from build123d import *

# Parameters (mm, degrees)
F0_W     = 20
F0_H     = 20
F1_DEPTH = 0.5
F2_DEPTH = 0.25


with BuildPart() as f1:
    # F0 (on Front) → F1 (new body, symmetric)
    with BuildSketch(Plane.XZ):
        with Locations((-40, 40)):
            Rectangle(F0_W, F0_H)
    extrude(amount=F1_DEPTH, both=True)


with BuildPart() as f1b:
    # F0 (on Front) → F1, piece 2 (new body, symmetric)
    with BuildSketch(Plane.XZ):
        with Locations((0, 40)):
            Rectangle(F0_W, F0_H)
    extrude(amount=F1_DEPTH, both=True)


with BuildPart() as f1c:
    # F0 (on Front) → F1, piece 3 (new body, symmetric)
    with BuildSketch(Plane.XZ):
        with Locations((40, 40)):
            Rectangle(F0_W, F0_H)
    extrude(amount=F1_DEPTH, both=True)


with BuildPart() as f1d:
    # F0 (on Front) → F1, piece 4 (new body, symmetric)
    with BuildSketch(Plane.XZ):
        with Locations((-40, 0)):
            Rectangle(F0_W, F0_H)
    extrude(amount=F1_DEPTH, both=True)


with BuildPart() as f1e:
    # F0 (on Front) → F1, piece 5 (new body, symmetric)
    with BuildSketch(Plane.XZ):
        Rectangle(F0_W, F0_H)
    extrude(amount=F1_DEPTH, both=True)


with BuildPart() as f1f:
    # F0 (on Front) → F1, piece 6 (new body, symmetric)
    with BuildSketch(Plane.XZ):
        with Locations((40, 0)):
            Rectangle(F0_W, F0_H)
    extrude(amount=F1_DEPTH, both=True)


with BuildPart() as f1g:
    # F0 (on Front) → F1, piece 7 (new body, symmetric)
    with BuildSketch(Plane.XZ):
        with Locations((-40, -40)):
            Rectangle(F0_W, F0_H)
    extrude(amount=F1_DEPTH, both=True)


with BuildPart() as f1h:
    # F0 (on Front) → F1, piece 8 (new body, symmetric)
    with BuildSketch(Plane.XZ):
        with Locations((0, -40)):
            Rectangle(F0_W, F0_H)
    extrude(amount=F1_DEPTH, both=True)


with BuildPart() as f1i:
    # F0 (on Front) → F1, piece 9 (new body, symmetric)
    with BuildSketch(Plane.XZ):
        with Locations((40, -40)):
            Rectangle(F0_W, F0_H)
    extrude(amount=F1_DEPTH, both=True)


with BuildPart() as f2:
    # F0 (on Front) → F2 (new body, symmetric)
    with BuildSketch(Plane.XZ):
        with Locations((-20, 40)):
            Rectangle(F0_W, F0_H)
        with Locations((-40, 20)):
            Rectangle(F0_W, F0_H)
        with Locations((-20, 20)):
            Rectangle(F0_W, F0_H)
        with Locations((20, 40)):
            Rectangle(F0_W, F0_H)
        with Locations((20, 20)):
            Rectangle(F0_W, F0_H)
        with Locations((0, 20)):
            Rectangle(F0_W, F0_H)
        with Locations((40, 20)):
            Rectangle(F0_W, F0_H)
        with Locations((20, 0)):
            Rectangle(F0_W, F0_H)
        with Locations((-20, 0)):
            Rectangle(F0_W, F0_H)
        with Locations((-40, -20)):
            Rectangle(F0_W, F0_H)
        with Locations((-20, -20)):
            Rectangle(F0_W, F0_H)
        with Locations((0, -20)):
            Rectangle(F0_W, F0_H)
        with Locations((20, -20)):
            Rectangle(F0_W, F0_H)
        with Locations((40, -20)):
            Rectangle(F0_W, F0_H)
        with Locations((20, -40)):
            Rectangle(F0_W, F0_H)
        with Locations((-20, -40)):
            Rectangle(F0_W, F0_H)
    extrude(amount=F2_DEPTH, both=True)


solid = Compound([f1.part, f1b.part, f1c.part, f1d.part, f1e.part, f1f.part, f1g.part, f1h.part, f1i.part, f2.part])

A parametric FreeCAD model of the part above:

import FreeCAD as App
import Part
import Sketcher

V = App.Vector


def add_polygon(sketch, points):
    """Adds a closed chain of lines whose ends are joined by coincident constraints."""
    first, n = sketch.GeometryCount, len(points)
    for a, b in zip(points, points[1:] + points[:1]):
        sketch.addGeometry(Part.LineSegment(App.Vector(*a, 0), App.Vector(*b, 0)), False)
    for i in range(n):
        sketch.addConstraint(Sketcher.Constraint("Coincident", first + i, 2, first + (i + 1) % n, 1))

doc = App.newDocument("Part")
params = doc.addObject("Spreadsheet::Sheet", "Params")
for row, (alias, value) in enumerate([
    ("sketch1_width", "20 mm"),
    ("pad1_length", "1 mm"),
    ("sketch2_width", "20 mm"),
    ("pad2_length", "1 mm"),
    ("sketch3_width", "20 mm"),
    ("pad3_length", "1 mm"),
    ("sketch4_width", "20 mm"),
    ("pad4_length", "1 mm"),
    ("sketch5_width", "20 mm"),
    ("pad5_length", "1 mm"),
    ("sketch6_width", "20 mm"),
    ("pad6_length", "1 mm"),
    ("sketch7_width", "20 mm"),
    ("pad7_length", "1 mm"),
    ("sketch8_width", "20 mm"),
    ("pad8_length", "1 mm"),
    ("sketch9_width", "20 mm"),
    ("pad9_length", "1 mm"),
    ("sketch10_width", "20 mm"),
    ("pad10_length", "0.5 mm"),
], start=1):
    params.set(f"A{row}", alias)
    params.set(f"B{row}", "=" + value)
    params.setAlias(f"B{row}", alias)

body = doc.addObject("PartDesign::Body", "Body")

sketch1 = doc.addObject("Sketcher::SketchObject", "Sketch")
body.addObject(sketch1)
sketch1.AttachmentSupport = (doc.XZ_Plane, [""])
sketch1.MapMode = "FlatFace"
add_polygon(sketch1, [(-50, 50), (-50, 30), (-30, 30), (-30, 50)])
sketch1.addConstraint(Sketcher.Constraint("Vertical", 0))
sketch1.addConstraint(Sketcher.Constraint("Horizontal", 1))
sketch1.addConstraint(Sketcher.Constraint("Vertical", 2))
sketch1.addConstraint(Sketcher.Constraint("Horizontal", 3))
sketch1.addConstraint(Sketcher.Constraint("Equal", 3, 0))
sketch1.addConstraint(Sketcher.Constraint("DistanceX", 1, 1, 1, 2, 20.0))
sketch1.addConstraint(Sketcher.Constraint("DistanceX", 0, 2, -1, 1, 50.0))
sketch1.addConstraint(Sketcher.Constraint("DistanceY", -1, 1, 0, 2, 30.0))
sketch1.setExpression("Constraints[9]", "Params.sketch1_width")
pad1 = doc.addObject("PartDesign::Pad", "Pad")
body.addObject(pad1)
pad1.Profile = sketch1
pad1.setExpression("Length", "Params.pad1_length")
pad1.Midplane = True
body2 = doc.addObject("PartDesign::Body", "Body001")

sketch2 = doc.addObject("Sketcher::SketchObject", "Sketch001")
body2.addObject(sketch2)
sketch2.AttachmentSupport = (doc.getObject("XZ_Plane001"), [""])
sketch2.MapMode = "FlatFace"
add_polygon(sketch2, [(-10, 50), (-10, 30), (10, 30), (10, 50)])
sketch2.addConstraint(Sketcher.Constraint("Vertical", 0))
sketch2.addConstraint(Sketcher.Constraint("Horizontal", 1))
sketch2.addConstraint(Sketcher.Constraint("Vertical", 2))
sketch2.addConstraint(Sketcher.Constraint("Horizontal", 3))
sketch2.addConstraint(Sketcher.Constraint("Equal", 3, 0))
sketch2.addConstraint(Sketcher.Constraint("DistanceX", 1, 1, 1, 2, 20.0))
sketch2.addConstraint(Sketcher.Constraint("DistanceX", 0, 2, -1, 1, 10.0))
sketch2.addConstraint(Sketcher.Constraint("DistanceY", -1, 1, 0, 2, 30.0))
sketch2.setExpression("Constraints[9]", "Params.sketch2_width")
pad2 = doc.addObject("PartDesign::Pad", "Pad001")
body2.addObject(pad2)
pad2.Profile = sketch2
pad2.setExpression("Length", "Params.pad2_length")
pad2.Midplane = True
body3 = doc.addObject("PartDesign::Body", "Body002")

sketch3 = doc.addObject("Sketcher::SketchObject", "Sketch002")
body3.addObject(sketch3)
sketch3.AttachmentSupport = (doc.getObject("XZ_Plane002"), [""])
sketch3.MapMode = "FlatFace"
add_polygon(sketch3, [(30, 50), (30, 30), (50, 30), (50, 50)])
sketch3.addConstraint(Sketcher.Constraint("Vertical", 0))
sketch3.addConstraint(Sketcher.Constraint("Horizontal", 1))
sketch3.addConstraint(Sketcher.Constraint("Vertical", 2))
sketch3.addConstraint(Sketcher.Constraint("Horizontal", 3))
sketch3.addConstraint(Sketcher.Constraint("Equal", 3, 0))
sketch3.addConstraint(Sketcher.Constraint("DistanceX", 1, 1, 1, 2, 20.0))
sketch3.addConstraint(Sketcher.Constraint("DistanceX", -1, 1, 0, 2, 30.0))
sketch3.addConstraint(Sketcher.Constraint("DistanceY", -1, 1, 0, 2, 30.0))
sketch3.setExpression("Constraints[9]", "Params.sketch3_width")
pad3 = doc.addObject("PartDesign::Pad", "Pad002")
body3.addObject(pad3)
pad3.Profile = sketch3
pad3.setExpression("Length", "Params.pad3_length")
pad3.Midplane = True
body4 = doc.addObject("PartDesign::Body", "Body003")

sketch4 = doc.addObject("Sketcher::SketchObject", "Sketch003")
body4.addObject(sketch4)
sketch4.AttachmentSupport = (doc.getObject("XZ_Plane003"), [""])
sketch4.MapMode = "FlatFace"
add_polygon(sketch4, [(-50, 10), (-50, -10), (-30, -10), (-30, 10)])
sketch4.addConstraint(Sketcher.Constraint("Vertical", 0))
sketch4.addConstraint(Sketcher.Constraint("Horizontal", 1))
sketch4.addConstraint(Sketcher.Constraint("Vertical", 2))
sketch4.addConstraint(Sketcher.Constraint("Horizontal", 3))
sketch4.addConstraint(Sketcher.Constraint("Equal", 3, 0))
sketch4.addConstraint(Sketcher.Constraint("DistanceX", 1, 1, 1, 2, 20.0))
sketch4.addConstraint(Sketcher.Constraint("DistanceX", 0, 2, -1, 1, 50.0))
sketch4.addConstraint(Sketcher.Constraint("DistanceY", 0, 2, -1, 1, 10.0))
sketch4.setExpression("Constraints[9]", "Params.sketch4_width")
pad4 = doc.addObject("PartDesign::Pad", "Pad003")
body4.addObject(pad4)
pad4.Profile = sketch4
pad4.setExpression("Length", "Params.pad4_length")
pad4.Midplane = True
body5 = doc.addObject("PartDesign::Body", "Body004")

sketch5 = doc.addObject("Sketcher::SketchObject", "Sketch004")
body5.addObject(sketch5)
sketch5.AttachmentSupport = (doc.getObject("XZ_Plane004"), [""])
sketch5.MapMode = "FlatFace"
add_polygon(sketch5, [(-10, 10), (-10, -10), (10, -10), (10, 10)])
sketch5.addConstraint(Sketcher.Constraint("Vertical", 0))
sketch5.addConstraint(Sketcher.Constraint("Horizontal", 1))
sketch5.addConstraint(Sketcher.Constraint("Vertical", 2))
sketch5.addConstraint(Sketcher.Constraint("Horizontal", 3))
sketch5.addConstraint(Sketcher.Constraint("Symmetric", 0, 2, 2, 2, -1, 1))
sketch5.addConstraint(Sketcher.Constraint("Equal", 3, 0))
sketch5.addConstraint(Sketcher.Constraint("DistanceX", 1, 1, 1, 2, 20.0))
sketch5.setExpression("Constraints[10]", "Params.sketch5_width")
pad5 = doc.addObject("PartDesign::Pad", "Pad004")
body5.addObject(pad5)
pad5.Profile = sketch5
pad5.setExpression("Length", "Params.pad5_length")
pad5.Midplane = True
body6 = doc.addObject("PartDesign::Body", "Body005")

sketch6 = doc.addObject("Sketcher::SketchObject", "Sketch005")
body6.addObject(sketch6)
sketch6.AttachmentSupport = (doc.getObject("XZ_Plane005"), [""])
sketch6.MapMode = "FlatFace"
add_polygon(sketch6, [(30, 10), (30, -10), (50, -10), (50, 10)])
sketch6.addConstraint(Sketcher.Constraint("Vertical", 0))
sketch6.addConstraint(Sketcher.Constraint("Horizontal", 1))
sketch6.addConstraint(Sketcher.Constraint("Vertical", 2))
sketch6.addConstraint(Sketcher.Constraint("Horizontal", 3))
sketch6.addConstraint(Sketcher.Constraint("Equal", 3, 0))
sketch6.addConstraint(Sketcher.Constraint("DistanceX", 1, 1, 1, 2, 20.0))
sketch6.addConstraint(Sketcher.Constraint("DistanceX", -1, 1, 0, 2, 30.0))
sketch6.addConstraint(Sketcher.Constraint("DistanceY", 0, 2, -1, 1, 10.0))
sketch6.setExpression("Constraints[9]", "Params.sketch6_width")
pad6 = doc.addObject("PartDesign::Pad", "Pad005")
body6.addObject(pad6)
pad6.Profile = sketch6
pad6.setExpression("Length", "Params.pad6_length")
pad6.Midplane = True
body7 = doc.addObject("PartDesign::Body", "Body006")

sketch7 = doc.addObject("Sketcher::SketchObject", "Sketch006")
body7.addObject(sketch7)
sketch7.AttachmentSupport = (doc.getObject("XZ_Plane006"), [""])
sketch7.MapMode = "FlatFace"
add_polygon(sketch7, [(-50, -30), (-50, -50), (-30, -50), (-30, -30)])
sketch7.addConstraint(Sketcher.Constraint("Vertical", 0))
sketch7.addConstraint(Sketcher.Constraint("Horizontal", 1))
sketch7.addConstraint(Sketcher.Constraint("Vertical", 2))
sketch7.addConstraint(Sketcher.Constraint("Horizontal", 3))
sketch7.addConstraint(Sketcher.Constraint("Equal", 3, 0))
sketch7.addConstraint(Sketcher.Constraint("DistanceX", 1, 1, 1, 2, 20.0))
sketch7.addConstraint(Sketcher.Constraint("DistanceX", 0, 2, -1, 1, 50.0))
sketch7.addConstraint(Sketcher.Constraint("DistanceY", 0, 2, -1, 1, 50.0))
sketch7.setExpression("Constraints[9]", "Params.sketch7_width")
pad7 = doc.addObject("PartDesign::Pad", "Pad006")
body7.addObject(pad7)
pad7.Profile = sketch7
pad7.setExpression("Length", "Params.pad7_length")
pad7.Midplane = True
body8 = doc.addObject("PartDesign::Body", "Body007")

sketch8 = doc.addObject("Sketcher::SketchObject", "Sketch007")
body8.addObject(sketch8)
sketch8.AttachmentSupport = (doc.getObject("XZ_Plane007"), [""])
sketch8.MapMode = "FlatFace"
add_polygon(sketch8, [(-10, -30), (-10, -50), (10, -50), (10, -30)])
sketch8.addConstraint(Sketcher.Constraint("Vertical", 0))
sketch8.addConstraint(Sketcher.Constraint("Horizontal", 1))
sketch8.addConstraint(Sketcher.Constraint("Vertical", 2))
sketch8.addConstraint(Sketcher.Constraint("Horizontal", 3))
sketch8.addConstraint(Sketcher.Constraint("Equal", 3, 0))
sketch8.addConstraint(Sketcher.Constraint("DistanceX", 1, 1, 1, 2, 20.0))
sketch8.addConstraint(Sketcher.Constraint("DistanceX", 0, 2, -1, 1, 10.0))
sketch8.addConstraint(Sketcher.Constraint("DistanceY", 0, 2, -1, 1, 50.0))
sketch8.setExpression("Constraints[9]", "Params.sketch8_width")
pad8 = doc.addObject("PartDesign::Pad", "Pad007")
body8.addObject(pad8)
pad8.Profile = sketch8
pad8.setExpression("Length", "Params.pad8_length")
pad8.Midplane = True
body9 = doc.addObject("PartDesign::Body", "Body008")

sketch9 = doc.addObject("Sketcher::SketchObject", "Sketch008")
body9.addObject(sketch9)
sketch9.AttachmentSupport = (doc.getObject("XZ_Plane008"), [""])
sketch9.MapMode = "FlatFace"
add_polygon(sketch9, [(30, -30), (30, -50), (50, -50), (50, -30)])
sketch9.addConstraint(Sketcher.Constraint("Vertical", 0))
sketch9.addConstraint(Sketcher.Constraint("Horizontal", 1))
sketch9.addConstraint(Sketcher.Constraint("Vertical", 2))
sketch9.addConstraint(Sketcher.Constraint("Horizontal", 3))
sketch9.addConstraint(Sketcher.Constraint("Equal", 3, 0))
sketch9.addConstraint(Sketcher.Constraint("DistanceX", 1, 1, 1, 2, 20.0))
sketch9.addConstraint(Sketcher.Constraint("DistanceX", -1, 1, 0, 2, 30.0))
sketch9.addConstraint(Sketcher.Constraint("DistanceY", 0, 2, -1, 1, 50.0))
sketch9.setExpression("Constraints[9]", "Params.sketch9_width")
pad9 = doc.addObject("PartDesign::Pad", "Pad008")
body9.addObject(pad9)
pad9.Profile = sketch9
pad9.setExpression("Length", "Params.pad9_length")
pad9.Midplane = True
body10 = doc.addObject("PartDesign::Body", "Body009")

sketch10 = doc.addObject("Sketcher::SketchObject", "Sketch009")
body10.addObject(sketch10)
sketch10.AttachmentSupport = (doc.getObject("XZ_Plane009"), [""])
sketch10.MapMode = "FlatFace"
add_polygon(sketch10, [(-50, -30), (-30, -30), (-30, -50), (-10, -50), (-10, -30), (10, -30), (10, -50), (30, -50), (30, -30), (50, -30), (50, -10), (30, -10), (30, 10), (50, 10), (50, 30), (30, 30), (30, 50), (10, 50), (10, 30), (-10, 30), (-10, 50), (-30, 50), (-30, 30), (-50, 30), (-50, 10), (-30, 10), (-30, -10), (-50, -10)])
add_polygon(sketch10, [(10, -10), (-10, -10), (-10, 10), (10, 10)])
sketch10.addConstraint(Sketcher.Constraint("Horizontal", 0))
sketch10.addConstraint(Sketcher.Constraint("Vertical", 1))
sketch10.addConstraint(Sketcher.Constraint("Horizontal", 2))
sketch10.addConstraint(Sketcher.Constraint("Vertical", 3))
sketch10.addConstraint(Sketcher.Constraint("Horizontal", 4))
sketch10.addConstraint(Sketcher.Constraint("Vertical", 5))
sketch10.addConstraint(Sketcher.Constraint("Horizontal", 6))
sketch10.addConstraint(Sketcher.Constraint("Vertical", 7))
sketch10.addConstraint(Sketcher.Constraint("Horizontal", 8))
sketch10.addConstraint(Sketcher.Constraint("Vertical", 9))
sketch10.addConstraint(Sketcher.Constraint("Horizontal", 10))
sketch10.addConstraint(Sketcher.Constraint("Vertical", 11))
sketch10.addConstraint(Sketcher.Constraint("Horizontal", 12))
sketch10.addConstraint(Sketcher.Constraint("Vertical", 13))
sketch10.addConstraint(Sketcher.Constraint("Horizontal", 14))
sketch10.addConstraint(Sketcher.Constraint("Vertical", 15))
sketch10.addConstraint(Sketcher.Constraint("Horizontal", 16))
sketch10.addConstraint(Sketcher.Constraint("Vertical", 17))
sketch10.addConstraint(Sketcher.Constraint("Horizontal", 18))
sketch10.addConstraint(Sketcher.Constraint("Vertical", 19))
sketch10.addConstraint(Sketcher.Constraint("Horizontal", 20))
sketch10.addConstraint(Sketcher.Constraint("Vertical", 21))
sketch10.addConstraint(Sketcher.Constraint("Horizontal", 22))
sketch10.addConstraint(Sketcher.Constraint("Vertical", 23))
sketch10.addConstraint(Sketcher.Constraint("Horizontal", 24))
sketch10.addConstraint(Sketcher.Constraint("Vertical", 25))
sketch10.addConstraint(Sketcher.Constraint("Horizontal", 26))
sketch10.addConstraint(Sketcher.Constraint("Vertical", 27))
sketch10.addConstraint(Sketcher.Constraint("Horizontal", 28))
sketch10.addConstraint(Sketcher.Constraint("Vertical", 29))
sketch10.addConstraint(Sketcher.Constraint("Horizontal", 30))
sketch10.addConstraint(Sketcher.Constraint("Vertical", 31))
sketch10.addConstraint(Sketcher.Constraint("Symmetric", 0, 2, 14, 2, -1, 1))
sketch10.addConstraint(Sketcher.Constraint("Symmetric", 2, 2, 16, 2, -1, 1))
sketch10.addConstraint(Sketcher.Constraint("Symmetric", 4, 2, 18, 2, -1, 1))
sketch10.addConstraint(Sketcher.Constraint("Symmetric", 6, 2, 20, 2, -1, 1))
sketch10.addConstraint(Sketcher.Constraint("Symmetric", 8, 2, 22, 2, -1, 1))
sketch10.addConstraint(Sketcher.Constraint("Symmetric", 10, 2, 24, 2, -1, 1))
sketch10.addConstraint(Sketcher.Constraint("Symmetric", 12, 2, 26, 2, -1, 1))
sketch10.addConstraint(Sketcher.Constraint("Symmetric", 28, 2, 30, 2, -1, 1))
sketch10.addConstraint(Sketcher.Constraint("Symmetric", 2, 2, 5, 2, -2))
sketch10.addConstraint(Sketcher.Constraint("Symmetric", 0, 2, 7, 2, -2))
sketch10.addConstraint(Sketcher.Constraint("Symmetric", 12, 2, 23, 2, -2))
sketch10.addConstraint(Sketcher.Constraint("Horizontal", 0, 2, 3, 2))
sketch10.addConstraint(Sketcher.Constraint("Horizontal", 26, 2, 28, 2))
sketch10.addConstraint(Sketcher.Constraint("Vertical", 7, 2, 10, 2))
sketch10.addConstraint(Sketcher.Constraint("Vertical", 19, 2, 28, 2))
sketch10.addConstraint(Sketcher.Constraint("Equal", 0, 2))
sketch10.addConstraint(Sketcher.Constraint("Equal", 2, 4))
sketch10.addConstraint(Sketcher.Constraint("Equal", 30, 1))
sketch10.addConstraint(Sketcher.Constraint("Equal", 7, 9))
sketch10.addConstraint(Sketcher.Constraint("Equal", 9, 11))
sketch10.addConstraint(Sketcher.Constraint("DistanceX", 0, 1, 0, 2, 20.0))
sketch10.setExpression("Constraints[84]", "Params.sketch10_width")
pad10 = doc.addObject("PartDesign::Pad", "Pad009")
body10.addObject(pad10)
pad10.Profile = sketch10
pad10.setExpression("Length", "Params.pad10_length")
pad10.Midplane = True

doc.recompute()
